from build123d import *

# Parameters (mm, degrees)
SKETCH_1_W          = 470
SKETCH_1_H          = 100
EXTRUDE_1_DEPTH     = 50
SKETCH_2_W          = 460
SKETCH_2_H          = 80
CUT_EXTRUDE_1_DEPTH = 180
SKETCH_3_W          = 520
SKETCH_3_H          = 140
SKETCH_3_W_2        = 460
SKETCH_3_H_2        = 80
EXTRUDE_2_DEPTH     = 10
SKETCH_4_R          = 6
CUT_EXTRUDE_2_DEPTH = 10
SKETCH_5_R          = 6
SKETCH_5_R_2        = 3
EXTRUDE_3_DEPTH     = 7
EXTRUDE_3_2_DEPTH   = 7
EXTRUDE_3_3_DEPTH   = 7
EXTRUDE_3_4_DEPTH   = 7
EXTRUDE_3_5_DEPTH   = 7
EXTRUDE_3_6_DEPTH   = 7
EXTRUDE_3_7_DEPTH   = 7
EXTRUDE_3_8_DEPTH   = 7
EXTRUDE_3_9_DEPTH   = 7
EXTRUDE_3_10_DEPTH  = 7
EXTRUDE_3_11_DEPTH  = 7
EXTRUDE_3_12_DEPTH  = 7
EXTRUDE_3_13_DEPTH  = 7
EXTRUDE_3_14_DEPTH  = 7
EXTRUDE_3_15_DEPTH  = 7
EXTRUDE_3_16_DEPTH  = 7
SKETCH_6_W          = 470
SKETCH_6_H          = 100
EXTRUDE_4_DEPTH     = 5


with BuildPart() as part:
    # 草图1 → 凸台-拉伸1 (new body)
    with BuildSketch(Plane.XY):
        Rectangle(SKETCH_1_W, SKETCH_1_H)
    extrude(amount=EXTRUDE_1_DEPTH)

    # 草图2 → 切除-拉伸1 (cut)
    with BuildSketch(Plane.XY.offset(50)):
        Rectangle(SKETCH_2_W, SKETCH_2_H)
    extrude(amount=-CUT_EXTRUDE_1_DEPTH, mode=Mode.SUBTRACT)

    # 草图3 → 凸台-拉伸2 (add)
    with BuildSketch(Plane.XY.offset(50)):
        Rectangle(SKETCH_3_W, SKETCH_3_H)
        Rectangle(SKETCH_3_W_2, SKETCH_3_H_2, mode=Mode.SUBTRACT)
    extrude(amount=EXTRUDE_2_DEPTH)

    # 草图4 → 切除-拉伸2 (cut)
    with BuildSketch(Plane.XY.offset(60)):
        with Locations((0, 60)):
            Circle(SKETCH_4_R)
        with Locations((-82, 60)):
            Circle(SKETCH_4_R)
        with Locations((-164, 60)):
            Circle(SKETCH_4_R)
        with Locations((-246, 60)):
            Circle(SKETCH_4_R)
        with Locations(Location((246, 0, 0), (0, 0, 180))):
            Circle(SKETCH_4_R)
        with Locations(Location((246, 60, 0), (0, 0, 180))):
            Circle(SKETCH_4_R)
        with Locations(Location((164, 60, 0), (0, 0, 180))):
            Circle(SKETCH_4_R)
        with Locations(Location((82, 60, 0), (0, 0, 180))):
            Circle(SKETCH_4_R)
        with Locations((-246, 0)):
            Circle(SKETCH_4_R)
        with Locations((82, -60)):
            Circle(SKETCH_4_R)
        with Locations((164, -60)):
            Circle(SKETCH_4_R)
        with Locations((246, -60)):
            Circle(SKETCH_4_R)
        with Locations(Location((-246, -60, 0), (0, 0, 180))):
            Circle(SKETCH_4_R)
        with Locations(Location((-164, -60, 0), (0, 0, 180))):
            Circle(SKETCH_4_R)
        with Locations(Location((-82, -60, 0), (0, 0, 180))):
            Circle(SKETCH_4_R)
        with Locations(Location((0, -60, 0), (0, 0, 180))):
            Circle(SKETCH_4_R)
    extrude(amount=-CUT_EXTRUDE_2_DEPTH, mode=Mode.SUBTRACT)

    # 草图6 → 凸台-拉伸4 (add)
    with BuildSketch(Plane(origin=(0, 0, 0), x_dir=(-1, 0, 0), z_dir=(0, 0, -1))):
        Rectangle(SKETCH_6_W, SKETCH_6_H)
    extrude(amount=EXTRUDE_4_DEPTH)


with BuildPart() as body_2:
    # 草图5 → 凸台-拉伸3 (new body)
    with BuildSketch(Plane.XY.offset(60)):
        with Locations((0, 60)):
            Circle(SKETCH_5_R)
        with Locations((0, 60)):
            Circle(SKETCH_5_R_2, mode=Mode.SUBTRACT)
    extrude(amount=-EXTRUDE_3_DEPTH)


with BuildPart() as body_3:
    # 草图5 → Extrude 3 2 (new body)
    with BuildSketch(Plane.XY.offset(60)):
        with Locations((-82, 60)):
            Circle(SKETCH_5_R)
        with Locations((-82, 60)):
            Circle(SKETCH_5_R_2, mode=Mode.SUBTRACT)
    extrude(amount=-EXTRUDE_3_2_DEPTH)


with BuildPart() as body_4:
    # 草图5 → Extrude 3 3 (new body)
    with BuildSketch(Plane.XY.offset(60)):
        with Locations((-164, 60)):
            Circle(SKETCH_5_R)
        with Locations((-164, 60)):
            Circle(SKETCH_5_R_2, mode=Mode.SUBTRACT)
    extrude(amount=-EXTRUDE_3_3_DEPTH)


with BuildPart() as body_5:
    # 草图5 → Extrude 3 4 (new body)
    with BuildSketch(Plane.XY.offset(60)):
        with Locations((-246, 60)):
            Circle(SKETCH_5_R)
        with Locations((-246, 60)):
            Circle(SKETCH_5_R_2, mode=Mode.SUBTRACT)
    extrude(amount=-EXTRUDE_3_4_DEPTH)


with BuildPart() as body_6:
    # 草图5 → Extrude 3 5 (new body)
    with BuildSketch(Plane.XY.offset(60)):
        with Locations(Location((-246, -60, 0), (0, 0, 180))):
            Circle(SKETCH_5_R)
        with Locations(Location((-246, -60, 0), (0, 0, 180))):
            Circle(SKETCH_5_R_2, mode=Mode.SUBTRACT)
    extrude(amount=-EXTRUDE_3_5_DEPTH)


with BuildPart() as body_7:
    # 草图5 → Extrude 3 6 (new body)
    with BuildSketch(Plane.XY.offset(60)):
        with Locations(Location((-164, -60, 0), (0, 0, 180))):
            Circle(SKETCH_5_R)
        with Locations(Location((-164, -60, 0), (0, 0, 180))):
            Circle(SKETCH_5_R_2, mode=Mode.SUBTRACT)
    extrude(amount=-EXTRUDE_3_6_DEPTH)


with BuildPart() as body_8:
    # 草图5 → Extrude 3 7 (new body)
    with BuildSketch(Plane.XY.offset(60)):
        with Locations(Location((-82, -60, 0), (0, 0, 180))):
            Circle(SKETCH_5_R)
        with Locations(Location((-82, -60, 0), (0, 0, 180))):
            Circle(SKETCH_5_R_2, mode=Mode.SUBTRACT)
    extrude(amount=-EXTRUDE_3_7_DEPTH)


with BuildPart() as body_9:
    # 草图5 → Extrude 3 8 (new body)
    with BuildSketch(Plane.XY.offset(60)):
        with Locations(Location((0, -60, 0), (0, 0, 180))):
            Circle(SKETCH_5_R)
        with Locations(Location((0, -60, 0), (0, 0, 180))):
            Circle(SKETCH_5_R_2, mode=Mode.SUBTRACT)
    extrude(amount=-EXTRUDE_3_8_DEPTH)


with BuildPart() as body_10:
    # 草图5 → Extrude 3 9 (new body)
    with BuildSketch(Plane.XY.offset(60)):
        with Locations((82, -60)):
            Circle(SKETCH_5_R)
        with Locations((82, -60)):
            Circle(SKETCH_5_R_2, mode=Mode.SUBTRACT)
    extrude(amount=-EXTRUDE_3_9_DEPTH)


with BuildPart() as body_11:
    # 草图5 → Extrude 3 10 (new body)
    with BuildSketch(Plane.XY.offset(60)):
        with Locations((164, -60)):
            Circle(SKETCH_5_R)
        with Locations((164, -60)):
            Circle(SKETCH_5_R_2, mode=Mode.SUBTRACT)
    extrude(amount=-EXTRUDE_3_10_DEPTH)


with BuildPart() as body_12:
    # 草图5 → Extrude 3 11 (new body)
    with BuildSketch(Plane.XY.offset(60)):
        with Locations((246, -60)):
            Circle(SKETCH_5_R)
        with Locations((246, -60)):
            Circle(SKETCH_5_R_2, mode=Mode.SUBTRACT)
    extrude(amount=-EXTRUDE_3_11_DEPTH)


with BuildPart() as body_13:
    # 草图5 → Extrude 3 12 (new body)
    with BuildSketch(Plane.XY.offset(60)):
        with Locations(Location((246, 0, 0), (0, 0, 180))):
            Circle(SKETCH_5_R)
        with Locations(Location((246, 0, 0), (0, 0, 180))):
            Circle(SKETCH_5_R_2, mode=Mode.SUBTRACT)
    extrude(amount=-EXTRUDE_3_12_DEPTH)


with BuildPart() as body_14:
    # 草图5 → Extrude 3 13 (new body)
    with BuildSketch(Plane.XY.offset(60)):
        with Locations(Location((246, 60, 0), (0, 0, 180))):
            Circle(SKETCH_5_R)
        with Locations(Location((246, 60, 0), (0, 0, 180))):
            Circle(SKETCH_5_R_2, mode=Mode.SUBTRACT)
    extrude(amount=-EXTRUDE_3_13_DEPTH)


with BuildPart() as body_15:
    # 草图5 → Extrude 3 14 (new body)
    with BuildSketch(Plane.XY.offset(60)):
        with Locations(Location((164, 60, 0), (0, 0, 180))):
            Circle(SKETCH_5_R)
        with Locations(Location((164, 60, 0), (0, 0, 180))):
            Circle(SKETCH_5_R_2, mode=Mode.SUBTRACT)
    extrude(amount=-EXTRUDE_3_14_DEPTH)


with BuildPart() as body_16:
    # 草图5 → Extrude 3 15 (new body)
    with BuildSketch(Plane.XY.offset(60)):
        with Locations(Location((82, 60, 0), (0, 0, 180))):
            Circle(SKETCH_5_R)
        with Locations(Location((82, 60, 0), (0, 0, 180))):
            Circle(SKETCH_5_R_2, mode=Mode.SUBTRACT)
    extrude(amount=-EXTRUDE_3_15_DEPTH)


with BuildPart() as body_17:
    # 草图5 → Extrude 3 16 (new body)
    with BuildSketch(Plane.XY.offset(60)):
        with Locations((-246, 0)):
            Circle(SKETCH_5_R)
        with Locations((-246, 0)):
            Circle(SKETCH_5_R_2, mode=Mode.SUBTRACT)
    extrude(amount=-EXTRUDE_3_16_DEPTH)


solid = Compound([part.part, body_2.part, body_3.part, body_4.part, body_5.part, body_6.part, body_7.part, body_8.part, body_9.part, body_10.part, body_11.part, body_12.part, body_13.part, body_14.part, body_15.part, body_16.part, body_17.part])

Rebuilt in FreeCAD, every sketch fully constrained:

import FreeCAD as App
import Part
import Sketcher
from FreeCAD import Vector

doc = App.newDocument("Part")
body = doc.addObject("PartDesign::Body", "Body")

# Sketch on XY plane
sketch1 = doc.addObject("Sketcher::SketchObject", "Sketch")
body.addObject(sketch1)
sketch1.AttachmentSupport = (doc.XY_Plane, [""])
sketch1.MapMode = "FlatFace"
sketch1.addGeometry([
    Part.LineSegment(Vector(-235, 50, 0), Vector(-235, -50, 0)),
    Part.LineSegment(Vector(-235, -50, 0), Vector(235, -50, 0)),
    Part.LineSegment(Vector(235, -50, 0), Vector(235, 50, 0)),
    Part.LineSegment(Vector(235, 50, 0), Vector(-235, 50, 0)),
], False)
sketch1.addConstraint([
    Sketcher.Constraint("Coincident", 0, 2, 1, 1),
    Sketcher.Constraint("Coincident", 1, 2, 2, 1),
    Sketcher.Constraint("Coincident", 2, 2, 3, 1),
    Sketcher.Constraint("Coincident", 3, 2, 0, 1),
    Sketcher.Constraint("Vertical", 0),
    Sketcher.Constraint("Horizontal", 1),
    Sketcher.Constraint("Vertical", 2),
    Sketcher.Constraint("Horizontal", 3),
    Sketcher.Constraint("Symmetric", 0, 2, 2, 2, -1, 1),
    Sketcher.Constraint("DistanceX", 1, 1, 1, 2, 470.0),
    Sketcher.Constraint("DistanceY", 0, 2, 0, 1, 100.0),
])
pad1 = doc.addObject("PartDesign::Pad", "Pad")
body.addObject(pad1)
pad1.Profile = sketch1
pad1.Length = 50

# Sketch on XY plane
sketch2 = doc.addObject("Sketcher::SketchObject", "Sketch001")
body.addObject(sketch2)
sketch2.AttachmentSupport = (doc.XY_Plane, [""])
sketch2.MapMode = "FlatFace"
sketch2.AttachmentOffset = App.Placement(Vector(0, 0, 50), App.Rotation())
sketch2.addGeometry([
    Part.LineSegment(Vector(-230, 40, 0), Vector(-230, -40, 0)),
    Part.LineSegment(Vector(-230, -40, 0), Vector(230, -40, 0)),
    Part.LineSegment(Vector(230, -40, 0), Vector(230, 40, 0)),
    Part.LineSegment(Vector(230, 40, 0), Vector(-230, 40, 0)),
], False)
sketch2.addConstraint([
    Sketcher.Constraint("Coincident", 0, 2, 1, 1),
    Sketcher.Constraint("Coincident", 1, 2, 2, 1),
    Sketcher.Constraint("Coincident", 2, 2, 3, 1),
    Sketcher.Constraint("Coincident", 3, 2, 0, 1),
    Sketcher.Constraint("Vertical", 0),
    Sketcher.Constraint("Horizontal", 1),
    Sketcher.Constraint("Vertical", 2),
    Sketcher.Constraint("Horizontal", 3),
    Sketcher.Constraint("Symmetric", 0, 2, 2, 2, -1, 1),
    Sketcher.Constraint("DistanceX", 1, 1, 1, 2, 460.0),
    Sketcher.Constraint("DistanceY", 0, 2, 0, 1, 80.0),
])
pocket1 = doc.addObject("PartDesign::Pocket", "Pocket")
body.addObject(pocket1)
pocket1.Profile = sketch2
pocket1.Length = 180

# Sketch on XY plane
sketch3 = doc.addObject("Sketcher::SketchObject", "Sketch002")
body.addObject(sketch3)
sketch3.AttachmentSupport = (doc.XY_Plane, [""])
sketch3.MapMode = "FlatFace"
sketch3.AttachmentOffset = App.Placement(Vector(0, 0, 50), App.Rotation())
sketch3.addGeometry([
    Part.LineSegment(Vector(-260, 70, 0), Vector(-260, -70, 0)),  # 0
    Part.LineSegment(Vector(-260, -70, 0), Vector(260, -70, 0)),  # 1
    Part.LineSegment(Vector(260, -70, 0), Vector(260, 70, 0)),  # 2
    Part.LineSegment(Vector(260, 70, 0), Vector(-260, 70, 0)),  # 3
    Part.LineSegment(Vector(230, -40, 0), Vector(-230, -40, 0)),  # 4
    Part.LineSegment(Vector(-230, -40, 0), Vector(-230, 40, 0)),  # 5
    Part.LineSegment(Vector(-230, 40, 0), Vector(230, 40, 0)),  # 6
    Part.LineSegment(Vector(230, 40, 0), Vector(230, -40, 0)),  # 7
], False)
sketch3.addConstraint([
    Sketcher.Constraint("Coincident", 0, 2, 1, 1),
    Sketcher.Constraint("Coincident", 1, 2, 2, 1),
    Sketcher.Constraint("Coincident", 2, 2, 3, 1),
    Sketcher.Constraint("Coincident", 3, 2, 0, 1),
    Sketcher.Constraint("Coincident", 4, 2, 5, 1),
    Sketcher.Constraint("Coincident", 5, 2, 6, 1),
    Sketcher.Constraint("Coincident", 6, 2, 7, 1),
    Sketcher.Constraint("Coincident", 7, 2, 4, 1),
    Sketcher.Constraint("Vertical", 0),
    Sketcher.Constraint("Horizontal", 1),
    Sketcher.Constraint("Vertical", 2),
    Sketcher.Constraint("Horizontal", 3),
    Sketcher.Constraint("Horizontal", 4),
    Sketcher.Constraint("Vertical", 5),
    Sketcher.Constraint("Horizontal", 6),
    Sketcher.Constraint("Vertical", 7),
    Sketcher.Constraint("Symmetric", 0, 2, 2, 2, -1, 1),
    Sketcher.Constraint("Symmetric", 4, 2, 6, 2, -1, 1),
    Sketcher.Constraint("DistanceX", 1, 1, 1, 2, 520.0),
    Sketcher.Constraint("DistanceX", 4, 2, 4, 1, 460.0),
    Sketcher.Constraint("DistanceY", 0, 2, 0, 1, 140.0),
    Sketcher.Constraint("DistanceY", 5, 1, 5, 2, 80.0),
])
pad2 = doc.addObject("PartDesign::Pad", "Pad001")
body.addObject(pad2)
pad2.Profile = sketch3
pad2.Length = 10

# Sketch on XY plane
sketch4 = doc.addObject("Sketcher::SketchObject", "Sketch003")
body.addObject(sketch4)
sketch4.AttachmentSupport = (doc.XY_Plane, [""])
sketch4.MapMode = "FlatFace"
sketch4.AttachmentOffset = App.Placement(Vector(0, 0, 60), App.Rotation())
sketch4.addGeometry([
    Part.Circle(Vector(0, 60, 0), Vector(0, 0, 1), 6),  # 0
    Part.Circle(Vector(-82, 60, 0), Vector(0, 0, 1), 6),  # 1
    Part.Circle(Vector(-164, 60, 0), Vector(0, 0, 1), 6),  # 2
    Part.Circle(Vector(-246, 60, 0), Vector(0, 0, 1), 6),  # 3
    Part.Circle(Vector(246, 0, 0), Vector(0, 0, 1), 6),  # 4
    Part.Circle(Vector(246, 60, 0), Vector(0, 0, 1), 6),  # 5
    Part.Circle(Vector(164, 60, 0), Vector(0, 0, 1), 6),  # 6
    Part.Circle(Vector(82, 60, 0), Vector(0, 0, 1), 6),  # 7
    Part.Circle(Vector(-246, 0, 0), Vector(0, 0, 1), 6),  # 8
    Part.Circle(Vector(82, -60, 0), Vector(0, 0, 1), 6),  # 9
    Part.Circle(Vector(164, -60, 0), Vector(0, 0, 1), 6),  # 10
    Part.Circle(Vector(246, -60, 0), Vector(0, 0, 1), 6),  # 11
    Part.Circle(Vector(-246, -60, 0), Vector(0, 0, 1), 6),  # 12
    Part.Circle(Vector(-164, -60, 0), Vector(0, 0, 1), 6),  # 13
    Part.Circle(Vector(-82, -60, 0), Vector(0, 0, 1), 6),  # 14
    Part.Circle(Vector(0, -60, 0), Vector(0, 0, 1), 6),  # 15
], False)
sketch4.addConstraint([
    Sketcher.Constraint("Equal", 0, 1),
    Sketcher.Constraint("Equal", 1, 2),
    Sketcher.Constraint("Equal", 2, 3),
    Sketcher.Constraint("Equal", 3, 4),
    Sketcher.Constraint("Equal", 4, 5),
    Sketcher.Constraint("Equal", 5, 6),
    Sketcher.Constraint("Equal", 6, 7),
    Sketcher.Constraint("Equal", 7, 8),
    Sketcher.Constraint("Equal", 8, 9),
    Sketcher.Constraint("Equal", 9, 10),
    Sketcher.Constraint("Equal", 10, 11),
    Sketcher.Constraint("Equal", 11, 12),
    Sketcher.Constraint("Equal", 12, 13),
    Sketcher.Constraint("Equal", 13, 14),
    Sketcher.Constraint("Equal", 14, 15),
    Sketcher.Constraint("Symmetric", 4, 3, 8, 3, -1, 1),
    Sketcher.Constraint("Symmetric", 1, 3, 9, 3, -1, 1),
    Sketcher.Constraint("Symmetric", 2, 3, 10, 3, -1, 1),
    Sketcher.Constraint("Symmetric", 3, 3, 11, 3, -1, 1),
    Sketcher.Constraint("Symmetric", 5, 3, 12, 3, -1, 1),
    Sketcher.Constraint("Symmetric", 6, 3, 13, 3, -1, 1),
    Sketcher.Constraint("Symmetric", 7, 3, 14, 3, -1, 1),
    Sketcher.Constraint("Symmetric", 0, 3, 15, 3, -1, 1),
    Sketcher.Constraint("Symmetric", 3, 3, 5, 3, -2),
    Sketcher.Constraint("Symmetric", 2, 3, 6, 3, -2),
    Sketcher.Constraint("Symmetric", 1, 3, 7, 3, -2),
    Sketcher.Constraint("PointOnObject", 0, 3, -2),
    Sketcher.Constraint("PointOnObject", 4, 3, -1),
    Sketcher.Constraint("Horizontal", 0, 3, 1, 3),
    Sketcher.Constraint("Horizontal", 1, 3, 2, 3),
    Sketcher.Constraint("Horizontal", 2, 3, 3, 3),
    Sketcher.Constraint("Vertical", 4, 3, 5, 3),
    Sketcher.Constraint("Diameter", 0, 12.0),
    Sketcher.Constraint("DistanceY", -1, 1, 0, 3, 60.0),
    Sketcher.Constraint("DistanceX", 1, 3, -1, 1, 82.0),
    Sketcher.Constraint("DistanceX", 2, 3, -1, 1, 164.0),
    Sketcher.Constraint("DistanceX", 3, 3, -1, 1, 246.0),
])
pocket2 = doc.addObject("PartDesign::Pocket", "Pocket001")
body.addObject(pocket2)
pocket2.Profile = sketch4
pocket2.Length = 10

# Sketch on XY plane
sketch5 = doc.addObject("Sketcher::SketchObject", "Sketch004")
body.addObject(sketch5)
sketch5.AttachmentSupport = (doc.XY_Plane, [""])
sketch5.MapMode = "FlatFace"
sketch5.addGeometry([
    Part.LineSegment(Vector(235, 50, 0), Vector(235, -50, 0)),
    Part.LineSegment(Vector(235, -50, 0), Vector(-235, -50, 0)),
    Part.LineSegment(Vector(-235, -50, 0), Vector(-235, 50, 0)),
    Part.LineSegment(Vector(-235, 50, 0), Vector(235, 50, 0)),
], False)
sketch5.addConstraint([
    Sketcher.Constraint("Coincident", 0, 2, 1, 1),
    Sketcher.Constraint("Coincident", 1, 2, 2, 1),
    Sketcher.Constraint("Coincident", 2, 2, 3, 1),
    Sketcher.Constraint("Coincident", 3, 2, 0, 1),
    Sketcher.Constraint("Vertical", 0),
    Sketcher.Constraint("Horizontal", 1),
    Sketcher.Constraint("Vertical", 2),
    Sketcher.Constraint("Horizontal", 3),
    Sketcher.Constraint("Symmetric", 0, 2, 2, 2, -1, 1),
    Sketcher.Constraint("DistanceX", 1, 2, 1, 1, 470.0),
    Sketcher.Constraint("DistanceY", 0, 2, 0, 1, 100.0),
])
pad3 = doc.addObject("PartDesign::Pad", "Pad002")
body.addObject(pad3)
pad3.Profile = sketch5
pad3.Length = 5
pad3.Reversed = True
body2 = doc.addObject("PartDesign::Body", "Body001")

# Sketch on XY plane
sketch6 = doc.addObject("Sketcher::SketchObject", "Sketch005")
body2.addObject(sketch6)
sketch6.AttachmentSupport = (doc.getObject("XY_Plane001"), [""])
sketch6.MapMode = "FlatFace"
sketch6.AttachmentOffset = App.Placement(Vector(0, 0, 60), App.Rotation())
sketch6.addGeometry([
    Part.Circle(Vector(0, 60, 0), Vector(0, 0, 1), 6),
    Part.Circle(Vector(0, 60, 0), Vector(0, 0, 1), 3),
], False)
sketch6.addConstraint([
    Sketcher.Constraint("Coincident", 1, 3, 0, 3),
    Sketcher.Constraint("PointOnObject", 0, 3, -2),
    Sketcher.Constraint("Diameter", 0, 12.0),
    Sketcher.Constraint("Diameter", 1, 6.0),
    Sketcher.Constraint("DistanceY", -1, 1, 0, 3, 60.0),
])
pad4 = doc.addObject("PartDesign::Pad", "Pad003")
body2.addObject(pad4)
pad4.Profile = sketch6
pad4.Length = 7
pad4.Reversed = True
body3 = doc.addObject("PartDesign::Body", "Body002")

# Sketch on XY plane
sketch7 = doc.addObject("Sketcher::SketchObject", "Sketch006")
body3.addObject(sketch7)
sketch7.AttachmentSupport = (doc.getObject("XY_Plane002"), [""])
sketch7.MapMode = "FlatFace"
sketch7.AttachmentOffset = App.Placement(Vector(0, 0, 60), App.Rotation())
sketch7.addGeometry([
    Part.Circle(Vector(-82, 60, 0), Vector(0, 0, 1), 6),
    Part.Circle(Vector(-82, 60, 0), Vector(0, 0, 1), 3),
], False)
sketch7.addConstraint([
    Sketcher.Constraint("Coincident", 1, 3, 0, 3),
    Sketcher.Constraint("Diameter", 0, 12.0),
    Sketcher.Constraint("Diameter", 1, 6.0),
    Sketcher.Constraint("DistanceX", 0, 3, -1, 1, 82.0),
    Sketcher.Constraint("DistanceY", -1, 1, 0, 3, 60.0),
])
pad5 = doc.addObject("PartDesign::Pad", "Pad004")
body3.addObject(pad5)
pad5.Profile = sketch7
pad5.Length = 7
pad5.Reversed = True
body4 = doc.addObject("PartDesign::Body", "Body003")

# Sketch on XY plane
sketch8 = doc.addObject("Sketcher::SketchObject", "Sketch007")
body4.addObject(sketch8)
sketch8.AttachmentSupport = (doc.getObject("XY_Plane003"), [""])
sketch8.MapMode = "FlatFace"
sketch8.AttachmentOffset = App.Placement(Vector(0, 0, 60), App.Rotation())
sketch8.addGeometry([
    Part.Circle(Vector(-164, 60, 0), Vector(0, 0, 1), 6),
    Part.Circle(Vector(-164, 60, 0), Vector(0, 0, 1), 3),
], False)
sketch8.addConstraint([
    Sketcher.Constraint("Coincident", 1, 3, 0, 3),
    Sketcher.Constraint("Diameter", 0, 12.0),
    Sketcher.Constraint("Diameter", 1, 6.0),
    Sketcher.Constraint("DistanceX", 0, 3, -1, 1, 164.0),
    Sketcher.Constraint("DistanceY", -1, 1, 0, 3, 60.0),
])
pad6 = doc.addObject("PartDesign::Pad", "Pad005")
body4.addObject(pad6)
pad6.Profile = sketch8
pad6.Length = 7
pad6.Reversed = True
body5 = doc.addObject("PartDesign::Body", "Body004")

# Sketch on XY plane
sketch9 = doc.addObject("Sketcher::SketchObject", "Sketch008")
body5.addObject(sketch9)
sketch9.AttachmentSupport = (doc.getObject("XY_Plane004"), [""])
sketch9.MapMode = "FlatFace"
sketch9.AttachmentOffset = App.Placement(Vector(0, 0, 60), App.Rotation())
sketch9.addGeometry([
    Part.Circle(Vector(-246, 60, 0), Vector(0, 0, 1), 6),
    Part.Circle(Vector(-246, 60, 0), Vector(0, 0, 1), 3),
], False)
sketch9.addConstraint([
    Sketcher.Constraint("Coincident", 1, 3, 0, 3),
    Sketcher.Constraint("Diameter", 0, 12.0),
    Sketcher.Constraint("Diameter", 1, 6.0),
    Sketcher.Constraint("DistanceX", 0, 3, -1, 1, 246.0),
    Sketcher.Constraint("DistanceY", -1, 1, 0, 3, 60.0),
])
pad7 = doc.addObject("PartDesign::Pad", "Pad006")
body5.addObject(pad7)
pad7.Profile = sketch9
pad7.Length = 7
pad7.Reversed = True
body6 = doc.addObject("PartDesign::Body", "Body005")

# Sketch on XY plane
sketch10 = doc.addObject("Sketcher::SketchObject", "Sketch009")
body6.addObject(sketch10)
sketch10.AttachmentSupport = (doc.getObject("XY_Plane005"), [""])
sketch10.MapMode = "FlatFace"
sketch10.AttachmentOffset = App.Placement(Vector(0, 0, 60), App.Rotation())
sketch10.addGeometry([
    Part.Circle(Vector(-246, -60, 0), Vector(0, 0, 1), 6),
    Part.Circle(Vector(-246, -60, 0), Vector(0, 0, 1), 3),
], False)
sketch10.addConstraint([
    Sketcher.Constraint("Coincident", 1, 3, 0, 3),
    Sketcher.Constraint("Diameter", 0, 12.0),
    Sketcher.Constraint("Diameter", 1, 6.0),
    Sketcher.Constraint("DistanceX", 0, 3, -1, 1, 246.0),
    Sketcher.Constraint("DistanceY", 0, 3, -1, 1, 60.0),
])
pad8 = doc.addObject("PartDesign::Pad", "Pad007")
body6.addObject(pad8)
pad8.Profile = sketch10
pad8.Length = 7
pad8.Reversed = True
body7 = doc.addObject("PartDesign::Body", "Body006")

# Sketch on XY plane
sketch11 = doc.addObject("Sketcher::SketchObject", "Sketch010")
body7.addObject(sketch11)
sketch11.AttachmentSupport = (doc.getObject("XY_Plane006"), [""])
sketch11.MapMode = "FlatFace"
sketch11.AttachmentOffset = App.Placement(Vector(0, 0, 60), App.Rotation())
sketch11.addGeometry([
    Part.Circle(Vector(-164, -60, 0), Vector(0, 0, 1), 6),
    Part.Circle(Vector(-164, -60, 0), Vector(0, 0, 1), 3),
], False)
sketch11.addConstraint([
    Sketcher.Constraint("Coincident", 1, 3, 0, 3),
    Sketcher.Constraint("Diameter", 0, 12.0),
    Sketcher.Constraint("Diameter", 1, 6.0),
    Sketcher.Constraint("DistanceX", 0, 3, -1, 1, 164.0),
    Sketcher.Constraint("DistanceY", 0, 3, -1, 1, 60.0),
])
pad9 = doc.addObject("PartDesign::Pad", "Pad008")
body7.addObject(pad9)
pad9.Profile = sketch11
pad9.Length = 7
pad9.Reversed = True
body8 = doc.addObject("PartDesign::Body", "Body007")

# Sketch on XY plane
sketch12 = doc.addObject("Sketcher::SketchObject", "Sketch011")
body8.addObject(sketch12)
sketch12.AttachmentSupport = (doc.getObject("XY_Plane007"), [""])
sketch12.MapMode = "FlatFace"
sketch12.AttachmentOffset = App.Placement(Vector(0, 0, 60), App.Rotation())
sketch12.addGeometry([
    Part.Circle(Vector(-82, -60, 0), Vector(0, 0, 1), 6),
    Part.Circle(Vector(-82, -60, 0), Vector(0, 0, 1), 3),
], False)
sketch12.addConstraint([
    Sketcher.Constraint("Coincident", 1, 3, 0, 3),
    Sketcher.Constraint("Diameter", 0, 12.0),
    Sketcher.Constraint("Diameter", 1, 6.0),
    Sketcher.Constraint("DistanceX", 0, 3, -1, 1, 82.0),
    Sketcher.Constraint("DistanceY", 0, 3, -1, 1, 60.0),
])
pad10 = doc.addObject("PartDesign::Pad", "Pad009")
body8.addObject(pad10)
pad10.Profile = sketch12
pad10.Length = 7
pad10.Reversed = True
body9 = doc.addObject("PartDesign::Body", "Body008")

# Sketch on XY plane
sketch13 = doc.addObject("Sketcher::SketchObject", "Sketch012")
body9.addObject(sketch13)
sketch13.AttachmentSupport = (doc.getObject("XY_Plane008"), [""])
sketch13.MapMode = "FlatFace"
sketch13.AttachmentOffset = App.Placement(Vector(0, 0, 60), App.Rotation())
sketch13.addGeometry([
    Part.Circle(Vector(0, -60, 0), Vector(0, 0, 1), 6),
    Part.Circle(Vector(0, -60, 0), Vector(0, 0, 1), 3),
], False)
sketch13.addConstraint([
    Sketcher.Constraint("Coincident", 1, 3, 0, 3),
    Sketcher.Constraint("PointOnObject", 0, 3, -2),
    Sketcher.Constraint("Diameter", 0, 12.0),
    Sketcher.Constraint("Diameter", 1, 6.0),
    Sketcher.Constraint("DistanceY", 0, 3, -1, 1, 60.0),
])
pad11 = doc.addObject("PartDesign::Pad", "Pad010")
body9.addObject(pad11)
pad11.Profile = sketch13
pad11.Length = 7
pad11.Reversed = True
body10 = doc.addObject("PartDesign::Body", "Body009")

# Sketch on XY plane
sketch14 = doc.addObject("Sketcher::SketchObject", "Sketch013")
body10.addObject(sketch14)
sketch14.AttachmentSupport = (doc.getObject("XY_Plane009"), [""])
sketch14.MapMode = "FlatFace"
sketch14.AttachmentOffset = App.Placement(Vector(0, 0, 60), App.Rotation())
sketch14.addGeometry([
    Part.Circle(Vector(82, -60, 0), Vector(0, 0, 1), 6),
    Part.Circle(Vector(82, -60, 0), Vector(0, 0, 1), 3),
], False)
sketch14.addConstraint([
    Sketcher.Constraint("Coincident", 1, 3, 0, 3),
    Sketcher.Constraint("Diameter", 0, 12.0),
    Sketcher.Constraint("Diameter", 1, 6.0),
    Sketcher.Constraint("DistanceX", -1, 1, 0, 3, 82.0),
    Sketcher.Constraint("DistanceY", 0, 3, -1, 1, 60.0),
])
pad12 = doc.addObject("PartDesign::Pad", "Pad011")
body10.addObject(pad12)
pad12.Profile = sketch14
pad12.Length = 7
pad12.Reversed = True
body11 = doc.addObject("PartDesign::Body", "Body010")

# Sketch on XY plane
sketch15 = doc.addObject("Sketcher::SketchObject", "Sketch014")
body11.addObject(sketch15)
sketch15.AttachmentSupport = (doc.getObject("XY_Plane010"), [""])
sketch15.MapMode = "FlatFace"
sketch15.AttachmentOffset = App.Placement(Vector(0, 0, 60), App.Rotation())
sketch15.addGeometry([
    Part.Circle(Vector(164, -60, 0), Vector(0, 0, 1), 6),
    Part.Circle(Vector(164, -60, 0), Vector(0, 0, 1), 3),
], False)
sketch15.addConstraint([
    Sketcher.Constraint("Coincident", 1, 3, 0, 3),
    Sketcher.Constraint("Diameter", 0, 12.0),
    Sketcher.Constraint("Diameter", 1, 6.0),
    Sketcher.Constraint("DistanceX", -1, 1, 0, 3, 164.0),
    Sketcher.Constraint("DistanceY", 0, 3, -1, 1, 60.0),
])
pad13 = doc.addObject("PartDesign::Pad", "Pad012")
body11.addObject(pad13)
pad13.Profile = sketch15
pad13.Length = 7
pad13.Reversed = True
body12 = doc.addObject("PartDesign::Body", "Body011")

# Sketch on XY plane
sketch16 = doc.addObject("Sketcher::SketchObject", "Sketch015")
body12.addObject(sketch16)
sketch16.AttachmentSupport = (doc.getObject("XY_Plane011"), [""])
sketch16.MapMode = "FlatFace"
sketch16.AttachmentOffset = App.Placement(Vector(0, 0, 60), App.Rotation())
sketch16.addGeometry([
    Part.Circle(Vector(246, -60, 0), Vector(0, 0, 1), 6),
    Part.Circle(Vector(246, -60, 0), Vector(0, 0, 1), 3),
], False)
sketch16.addConstraint([
    Sketcher.Constraint("Coincident", 1, 3, 0, 3),
    Sketcher.Constraint("Diameter", 0, 12.0),
    Sketcher.Constraint("Diameter", 1, 6.0),
    Sketcher.Constraint("DistanceX", -1, 1, 0, 3, 246.0),
    Sketcher.Constraint("DistanceY", 0, 3, -1, 1, 60.0),
])
pad14 = doc.addObject("PartDesign::Pad", "Pad013")
body12.addObject(pad14)
pad14.Profile = sketch16
pad14.Length = 7
pad14.Reversed = True
body13 = doc.addObject("PartDesign::Body", "Body012")

# Sketch on XY plane
sketch17 = doc.addObject("Sketcher::SketchObject", "Sketch016")
body13.addObject(sketch17)
sketch17.AttachmentSupport = (doc.getObject("XY_Plane012"), [""])
sketch17.MapMode = "FlatFace"
sketch17.AttachmentOffset = App.Placement(Vector(0, 0, 60), App.Rotation())
sketch17.addGeometry([
    Part.Circle(Vector(246, 0, 0), Vector(0, 0, 1), 6),
    Part.Circle(Vector(246, 0, 0), Vector(0, 0, 1), 3),
], False)
sketch17.addConstraint([
    Sketcher.Constraint("Coincident", 1, 3, 0, 3),
    Sketcher.Constraint("PointOnObject", 0, 3, -1),
    Sketcher.Constraint("Diameter", 0, 12.0),
    Sketcher.Constraint("Diameter", 1, 6.0),
    Sketcher.Constraint("DistanceX", -1, 1, 0, 3, 246.0),
])
pad15 = doc.addObject("PartDesign::Pad", "Pad014")
body13.addObject(pad15)
pad15.Profile = sketch17
pad15.Length = 7
pad15.Reversed = True
body14 = doc.addObject("PartDesign::Body", "Body013")

# Sketch on XY plane
sketch18 = doc.addObject("Sketcher::SketchObject", "Sketch017")
body14.addObject(sketch18)
sketch18.AttachmentSupport = (doc.getObject("XY_Plane013"), [""])
sketch18.MapMode = "FlatFace"
sketch18.AttachmentOffset = App.Placement(Vector(0, 0, 60), App.Rotation())
sketch18.addGeometry([
    Part.Circle(Vector(246, 60, 0), Vector(0, 0, 1), 6),
    Part.Circle(Vector(246, 60, 0), Vector(0, 0, 1), 3),
], False)
sketch18.addConstraint([
    Sketcher.Constraint("Coincident", 1, 3, 0, 3),
    Sketcher.Constraint("Diameter", 0, 12.0),
    Sketcher.Constraint("Diameter", 1, 6.0),
    Sketcher.Constraint("DistanceX", -1, 1, 0, 3, 246.0),
    Sketcher.Constraint("DistanceY", -1, 1, 0, 3, 60.0),
])
pad16 = doc.addObject("PartDesign::Pad", "Pad015")
body14.addObject(pad16)
pad16.Profile = sketch18
pad16.Length = 7
pad16.Reversed = True
body15 = doc.addObject("PartDesign::Body", "Body014")

# Sketch on XY plane
sketch19 = doc.addObject("Sketcher::SketchObject", "Sketch018")
body15.addObject(sketch19)
sketch19.AttachmentSupport = (doc.getObject("XY_Plane014"), [""])
sketch19.MapMode = "FlatFace"
sketch19.AttachmentOffset = App.Placement(Vector(0, 0, 60), App.Rotation())
sketch19.addGeometry([
    Part.Circle(Vector(164, 60, 0), Vector(0, 0, 1), 6),
    Part.Circle(Vector(164, 60, 0), Vector(0, 0, 1), 3),
], False)
sketch19.addConstraint([
    Sketcher.Constraint("Coincident", 1, 3, 0, 3),
    Sketcher.Constraint("Diameter", 0, 12.0),
    Sketcher.Constraint("Diameter", 1, 6.0),
    Sketcher.Constraint("DistanceX", -1, 1, 0, 3, 164.0),
    Sketcher.Constraint("DistanceY", -1, 1, 0, 3, 60.0),
])
pad17 = doc.addObject("PartDesign::Pad", "Pad016")
body15.addObject(pad17)
pad17.Profile = sketch19
pad17.Length = 7
pad17.Reversed = True
body16 = doc.addObject("PartDesign::Body", "Body015")

# Sketch on XY plane
sketch20 = doc.addObject("Sketcher::SketchObject", "Sketch019")
body16.addObject(sketch20)
sketch20.AttachmentSupport = (doc.getObject("XY_Plane015"), [""])
sketch20.MapMode = "FlatFace"
sketch20.AttachmentOffset = App.Placement(Vector(0, 0, 60), App.Rotation())
sketch20.addGeometry([
    Part.Circle(Vector(82, 60, 0), Vector(0, 0, 1), 6),
    Part.Circle(Vector(82, 60, 0), Vector(0, 0, 1), 3),
], False)
sketch20.addConstraint([
    Sketcher.Constraint("Coincident", 1, 3, 0, 3),
    Sketcher.Constraint("Diameter", 0, 12.0),
    Sketcher.Constraint("Diameter", 1, 6.0),
    Sketcher.Constraint("DistanceX", -1, 1, 0, 3, 82.0),
    Sketcher.Constraint("DistanceY", -1, 1, 0, 3, 60.0),
])
pad18 = doc.addObject("PartDesign::Pad", "Pad017")
body16.addObject(pad18)
pad18.Profile = sketch20
pad18.Length = 7
pad18.Reversed = True
body17 = doc.addObject("PartDesign::Body", "Body016")

# Sketch on XY plane
sketch21 = doc.addObject("Sketcher::SketchObject", "Sketch020")
body17.addObject(sketch21)
sketch21.AttachmentSupport = (doc.getObject("XY_Plane016"), [""])
sketch21.MapMode = "FlatFace"
sketch21.AttachmentOffset = App.Placement(Vector(0, 0, 60), App.Rotation())
sketch21.addGeometry([
    Part.Circle(Vector(-246, 0, 0), Vector(0, 0, 1), 6),
    Part.Circle(Vector(-246, 0, 0), Vector(0, 0, 1), 3),
], False)
sketch21.addConstraint([
    Sketcher.Constraint("Coincident", 1, 3, 0, 3),
    Sketcher.Constraint("PointOnObject", 0, 3, -1),
    Sketcher.Constraint("Diameter", 0, 12.0),
    Sketcher.Constraint("Diameter", 1, 6.0),
    Sketcher.Constraint("DistanceX", 0, 3, -1, 1, 246.0),
])
pad19 = doc.addObject("PartDesign::Pad", "Pad018")
body17.addObject(pad19)
pad19.Profile = sketch21
pad19.Length = 7
pad19.Reversed = True

doc.recompute()
